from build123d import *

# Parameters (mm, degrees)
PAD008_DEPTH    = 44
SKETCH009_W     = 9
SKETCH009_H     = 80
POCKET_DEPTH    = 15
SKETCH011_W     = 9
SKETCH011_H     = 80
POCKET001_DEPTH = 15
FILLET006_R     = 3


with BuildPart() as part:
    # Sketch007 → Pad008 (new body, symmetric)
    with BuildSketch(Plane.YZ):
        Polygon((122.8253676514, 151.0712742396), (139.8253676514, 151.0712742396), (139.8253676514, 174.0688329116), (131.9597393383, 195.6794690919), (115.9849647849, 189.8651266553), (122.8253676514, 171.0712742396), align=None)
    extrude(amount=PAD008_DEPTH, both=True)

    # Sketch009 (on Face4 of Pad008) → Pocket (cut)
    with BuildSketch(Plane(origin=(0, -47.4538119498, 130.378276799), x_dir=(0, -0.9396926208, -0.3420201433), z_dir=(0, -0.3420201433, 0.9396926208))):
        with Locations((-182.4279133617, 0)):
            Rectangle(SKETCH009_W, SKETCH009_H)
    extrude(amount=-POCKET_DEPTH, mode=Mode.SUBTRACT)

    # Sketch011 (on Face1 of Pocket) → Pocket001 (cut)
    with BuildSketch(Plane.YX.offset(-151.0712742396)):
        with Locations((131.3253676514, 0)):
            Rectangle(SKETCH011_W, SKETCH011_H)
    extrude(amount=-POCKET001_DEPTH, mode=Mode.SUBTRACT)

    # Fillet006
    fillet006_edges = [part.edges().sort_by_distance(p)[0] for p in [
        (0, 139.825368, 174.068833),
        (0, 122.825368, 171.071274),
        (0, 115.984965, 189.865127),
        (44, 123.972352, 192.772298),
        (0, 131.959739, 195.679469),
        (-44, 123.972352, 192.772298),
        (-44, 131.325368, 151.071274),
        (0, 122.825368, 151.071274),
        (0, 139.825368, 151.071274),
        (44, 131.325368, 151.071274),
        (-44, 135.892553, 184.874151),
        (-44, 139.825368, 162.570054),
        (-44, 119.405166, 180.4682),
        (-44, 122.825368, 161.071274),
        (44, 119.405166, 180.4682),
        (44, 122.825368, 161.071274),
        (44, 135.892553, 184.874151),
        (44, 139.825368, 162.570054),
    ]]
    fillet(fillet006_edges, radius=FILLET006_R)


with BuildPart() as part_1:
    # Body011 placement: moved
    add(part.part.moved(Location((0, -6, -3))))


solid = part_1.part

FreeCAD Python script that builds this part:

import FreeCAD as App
import Part
import Sketcher
from FreeCAD import Vector
Q = App.Units.Quantity


def edges_at(feature, points):
    """Names of the edges that pass closest to the given points."""
    edges = feature.Shape.Edges
    near = lambda p: min(range(len(edges)), key=lambda i: edges[i].distToShape(Part.Vertex(*p))[0])
    return sorted({f"Edge{near(p) + 1}" for p in points})

doc = App.newDocument("Part")
body = doc.addObject("PartDesign::Body", "Body")

sketch1 = body.newObject("Sketcher::SketchObject", "Sketch")
sketch1.AttachmentSupport = (doc.getObject("YZ_Plane"), [""])
sketch1.MapMode = "FlatFace"
sketch1.addGeometry([
    Part.LineSegment(Vector(122.825368, 151.071274, 0), Vector(139.825368, 151.071274, 0)),
    Part.LineSegment(Vector(139.825368, 151.071274, 0), Vector(139.825368, 174.068833, 0)),
    Part.LineSegment(Vector(139.825368, 174.068833, 0), Vector(131.959739, 195.679469, 0)),
    Part.LineSegment(Vector(131.959739, 195.679469, 0), Vector(115.984965, 189.865127, 0)),
    Part.LineSegment(Vector(115.984965, 189.865127, 0), Vector(122.825368, 171.071274, 0)),
    Part.LineSegment(Vector(122.825368, 171.071274, 0), Vector(122.825368, 151.071274, 0)),
], False)
sketch1.addConstraint([
    Sketcher.Constraint("Coincident", 0, 2, 1, 1),
    Sketcher.Constraint("Coincident", 1, 2, 2, 1),
    Sketcher.Constraint("Coincident", 2, 2, 3, 1),
    Sketcher.Constraint("Coincident", 3, 2, 4, 1),
    Sketcher.Constraint("Coincident", 4, 2, 5, 1),
    Sketcher.Constraint("Coincident", 5, 2, 0, 1),
    Sketcher.Constraint("Horizontal", 0),
    Sketcher.Constraint("Vertical", 1),
    Sketcher.Constraint("Vertical", 5),
    Sketcher.Constraint("Perpendicular", 2, 3),
    Sketcher.Constraint("Perpendicular", 3, 4),
    Sketcher.Constraint("DistanceX", 0, 1, 0, 2, Q("17 mm")),
    Sketcher.Constraint("DistanceY", 5, 2, 5, 1, Q("20 mm")),
    Sketcher.Constraint("Angle", 2, Q("110 deg")),
    Sketcher.Constraint("Distance", 3, Q("17 mm")),
    Sketcher.Constraint("Distance", 4, Q("20 mm")),
    Sketcher.Constraint("DistanceX", -1, 1, 2, 2, Q("131.959739 mm")),
    Sketcher.Constraint("DistanceY", -1, 1, 2, 2, Q("195.679469 mm")),
])
pad1 = body.newObject("PartDesign::Pad", "Pad")
pad1.Profile = sketch1
pad1.Length = 88
pad1.Midplane = True

sketch2 = body.newObject("Sketcher::SketchObject", "Sketch001")
sketch2.Placement = App.Placement(Vector(0, -47.453812, 130.378277), App.Rotation(Vector(0, -0.939692621, -0.342020143), Vector(1, 0, 0), Vector(0, -0.342020143, 0.939692621), "ZXY"))
sketch2.addGeometry([
    Part.LineSegment(Vector(-186.927913, 40, 0), Vector(-186.927913, -40, 0)),
    Part.LineSegment(Vector(-186.927913, -40, 0), Vector(-177.927913, -40, 0)),
    Part.LineSegment(Vector(-177.927913, -40, 0), Vector(-177.927913, 40, 0)),
    Part.LineSegment(Vector(-177.927913, 40, 0), Vector(-186.927913, 40, 0)),
], False)
sketch2.addConstraint([
    Sketcher.Constraint("Coincident", 0, 2, 1, 1),
    Sketcher.Constraint("Coincident", 1, 2, 2, 1),
    Sketcher.Constraint("Coincident", 2, 2, 3, 1),
    Sketcher.Constraint("Coincident", 3, 2, 0, 1),
    Sketcher.Constraint("Vertical", 0),
    Sketcher.Constraint("Horizontal", 1),
    Sketcher.Constraint("Vertical", 2),
    Sketcher.Constraint("Horizontal", 3),
    Sketcher.Constraint("DistanceX", 1, 1, 1, 2, Q("9 mm")),
    Sketcher.Constraint("DistanceY", 0, 2, 0, 1, Q("80 mm")),
    Sketcher.Constraint("DistanceY", 0, 2, -1, 1, Q("40 mm")),
    Sketcher.Constraint("DistanceX", 0, 2, -1, 1, Q("186.927913 mm")),
])
pocket1 = body.newObject("PartDesign::Pocket", "Pocket")
pocket1.Profile = sketch2
pocket1.Length = 15

sketch3 = body.newObject("Sketcher::SketchObject", "Sketch002")
sketch3.AttachmentSupport = (doc.getObject("XY_Plane"), [""])
sketch3.MapMode = "FlatFace"
sketch3.AttachmentOffset = App.Placement(Vector(0, 0, 151.071274), App.Rotation())
sketch3.addGeometry([
    Part.LineSegment(Vector(40, 126.825368, 0), Vector(-40, 126.825368, 0)),
    Part.LineSegment(Vector(-40, 126.825368, 0), Vector(-40, 135.825368, 0)),
    Part.LineSegment(Vector(-40, 135.825368, 0), Vector(40, 135.825368, 0)),
    Part.LineSegment(Vector(40, 135.825368, 0), Vector(40, 126.825368, 0)),
], False)
sketch3.addConstraint([
    Sketcher.Constraint("Coincident", 0, 2, 1, 1),
    Sketcher.Constraint("Coincident", 1, 2, 2, 1),
    Sketcher.Constraint("Coincident", 2, 2, 3, 1),
    Sketcher.Constraint("Coincident", 3, 2, 0, 1),
    Sketcher.Constraint("Horizontal", 0),
    Sketcher.Constraint("Vertical", 1),
    Sketcher.Constraint("Horizontal", 2),
    Sketcher.Constraint("Vertical", 3),
    Sketcher.Constraint("DistanceX", 0, 2, 0, 1, Q("80 mm")),
    Sketcher.Constraint("DistanceY", 1, 1, 1, 2, Q("9 mm")),
    Sketcher.Constraint("DistanceX", 0, 2, -1, 1, Q("40 mm")),
    Sketcher.Constraint("DistanceY", -1, 1, 0, 2, Q("126.825368 mm")),
])
pocket2 = body.newObject("PartDesign::Pocket", "Pocket001")
pocket2.Profile = sketch3
pocket2.Length = 15
pocket2.Reversed = True
doc.recompute()

fillet = body.newObject("PartDesign::Fillet", "Fillet")
fillet.Base = (pocket2, edges_at(pocket2, [
    (0, 139.825, 174.069),
    (0, 122.825, 171.071),
    (0, 115.985, 189.865),
    (44, 123.972, 192.772),
    (0, 131.96, 195.679),
    (-44, 123.972, 192.772),
    (-44, 131.325, 151.071),
    (0, 122.825, 151.071),
    (0, 139.825, 151.071),
    (44, 131.325, 151.071),
    (-44, 135.893, 184.874),
    (-44, 139.825, 162.57),
    (-44, 119.405, 180.468),
    (-44, 122.825, 161.071),
    (44, 119.405, 180.468),
    (44, 122.825, 161.071),
    (44, 135.893, 184.874),
    (44, 139.825, 162.57),
]))
fillet.Radius = 3
body2 = doc.addObject("PartDesign::Body", "Body001")
doc.recompute()

body.Placement = App.Placement(Vector(0, -6, -3), App.Rotation(Vector(0, 0, 1), 0))
boolean = body2.newObject("PartDesign::Boolean", "Boolean")
boolean.Type = "Fuse"
boolean.addObjects([body])

doc.recompute()
